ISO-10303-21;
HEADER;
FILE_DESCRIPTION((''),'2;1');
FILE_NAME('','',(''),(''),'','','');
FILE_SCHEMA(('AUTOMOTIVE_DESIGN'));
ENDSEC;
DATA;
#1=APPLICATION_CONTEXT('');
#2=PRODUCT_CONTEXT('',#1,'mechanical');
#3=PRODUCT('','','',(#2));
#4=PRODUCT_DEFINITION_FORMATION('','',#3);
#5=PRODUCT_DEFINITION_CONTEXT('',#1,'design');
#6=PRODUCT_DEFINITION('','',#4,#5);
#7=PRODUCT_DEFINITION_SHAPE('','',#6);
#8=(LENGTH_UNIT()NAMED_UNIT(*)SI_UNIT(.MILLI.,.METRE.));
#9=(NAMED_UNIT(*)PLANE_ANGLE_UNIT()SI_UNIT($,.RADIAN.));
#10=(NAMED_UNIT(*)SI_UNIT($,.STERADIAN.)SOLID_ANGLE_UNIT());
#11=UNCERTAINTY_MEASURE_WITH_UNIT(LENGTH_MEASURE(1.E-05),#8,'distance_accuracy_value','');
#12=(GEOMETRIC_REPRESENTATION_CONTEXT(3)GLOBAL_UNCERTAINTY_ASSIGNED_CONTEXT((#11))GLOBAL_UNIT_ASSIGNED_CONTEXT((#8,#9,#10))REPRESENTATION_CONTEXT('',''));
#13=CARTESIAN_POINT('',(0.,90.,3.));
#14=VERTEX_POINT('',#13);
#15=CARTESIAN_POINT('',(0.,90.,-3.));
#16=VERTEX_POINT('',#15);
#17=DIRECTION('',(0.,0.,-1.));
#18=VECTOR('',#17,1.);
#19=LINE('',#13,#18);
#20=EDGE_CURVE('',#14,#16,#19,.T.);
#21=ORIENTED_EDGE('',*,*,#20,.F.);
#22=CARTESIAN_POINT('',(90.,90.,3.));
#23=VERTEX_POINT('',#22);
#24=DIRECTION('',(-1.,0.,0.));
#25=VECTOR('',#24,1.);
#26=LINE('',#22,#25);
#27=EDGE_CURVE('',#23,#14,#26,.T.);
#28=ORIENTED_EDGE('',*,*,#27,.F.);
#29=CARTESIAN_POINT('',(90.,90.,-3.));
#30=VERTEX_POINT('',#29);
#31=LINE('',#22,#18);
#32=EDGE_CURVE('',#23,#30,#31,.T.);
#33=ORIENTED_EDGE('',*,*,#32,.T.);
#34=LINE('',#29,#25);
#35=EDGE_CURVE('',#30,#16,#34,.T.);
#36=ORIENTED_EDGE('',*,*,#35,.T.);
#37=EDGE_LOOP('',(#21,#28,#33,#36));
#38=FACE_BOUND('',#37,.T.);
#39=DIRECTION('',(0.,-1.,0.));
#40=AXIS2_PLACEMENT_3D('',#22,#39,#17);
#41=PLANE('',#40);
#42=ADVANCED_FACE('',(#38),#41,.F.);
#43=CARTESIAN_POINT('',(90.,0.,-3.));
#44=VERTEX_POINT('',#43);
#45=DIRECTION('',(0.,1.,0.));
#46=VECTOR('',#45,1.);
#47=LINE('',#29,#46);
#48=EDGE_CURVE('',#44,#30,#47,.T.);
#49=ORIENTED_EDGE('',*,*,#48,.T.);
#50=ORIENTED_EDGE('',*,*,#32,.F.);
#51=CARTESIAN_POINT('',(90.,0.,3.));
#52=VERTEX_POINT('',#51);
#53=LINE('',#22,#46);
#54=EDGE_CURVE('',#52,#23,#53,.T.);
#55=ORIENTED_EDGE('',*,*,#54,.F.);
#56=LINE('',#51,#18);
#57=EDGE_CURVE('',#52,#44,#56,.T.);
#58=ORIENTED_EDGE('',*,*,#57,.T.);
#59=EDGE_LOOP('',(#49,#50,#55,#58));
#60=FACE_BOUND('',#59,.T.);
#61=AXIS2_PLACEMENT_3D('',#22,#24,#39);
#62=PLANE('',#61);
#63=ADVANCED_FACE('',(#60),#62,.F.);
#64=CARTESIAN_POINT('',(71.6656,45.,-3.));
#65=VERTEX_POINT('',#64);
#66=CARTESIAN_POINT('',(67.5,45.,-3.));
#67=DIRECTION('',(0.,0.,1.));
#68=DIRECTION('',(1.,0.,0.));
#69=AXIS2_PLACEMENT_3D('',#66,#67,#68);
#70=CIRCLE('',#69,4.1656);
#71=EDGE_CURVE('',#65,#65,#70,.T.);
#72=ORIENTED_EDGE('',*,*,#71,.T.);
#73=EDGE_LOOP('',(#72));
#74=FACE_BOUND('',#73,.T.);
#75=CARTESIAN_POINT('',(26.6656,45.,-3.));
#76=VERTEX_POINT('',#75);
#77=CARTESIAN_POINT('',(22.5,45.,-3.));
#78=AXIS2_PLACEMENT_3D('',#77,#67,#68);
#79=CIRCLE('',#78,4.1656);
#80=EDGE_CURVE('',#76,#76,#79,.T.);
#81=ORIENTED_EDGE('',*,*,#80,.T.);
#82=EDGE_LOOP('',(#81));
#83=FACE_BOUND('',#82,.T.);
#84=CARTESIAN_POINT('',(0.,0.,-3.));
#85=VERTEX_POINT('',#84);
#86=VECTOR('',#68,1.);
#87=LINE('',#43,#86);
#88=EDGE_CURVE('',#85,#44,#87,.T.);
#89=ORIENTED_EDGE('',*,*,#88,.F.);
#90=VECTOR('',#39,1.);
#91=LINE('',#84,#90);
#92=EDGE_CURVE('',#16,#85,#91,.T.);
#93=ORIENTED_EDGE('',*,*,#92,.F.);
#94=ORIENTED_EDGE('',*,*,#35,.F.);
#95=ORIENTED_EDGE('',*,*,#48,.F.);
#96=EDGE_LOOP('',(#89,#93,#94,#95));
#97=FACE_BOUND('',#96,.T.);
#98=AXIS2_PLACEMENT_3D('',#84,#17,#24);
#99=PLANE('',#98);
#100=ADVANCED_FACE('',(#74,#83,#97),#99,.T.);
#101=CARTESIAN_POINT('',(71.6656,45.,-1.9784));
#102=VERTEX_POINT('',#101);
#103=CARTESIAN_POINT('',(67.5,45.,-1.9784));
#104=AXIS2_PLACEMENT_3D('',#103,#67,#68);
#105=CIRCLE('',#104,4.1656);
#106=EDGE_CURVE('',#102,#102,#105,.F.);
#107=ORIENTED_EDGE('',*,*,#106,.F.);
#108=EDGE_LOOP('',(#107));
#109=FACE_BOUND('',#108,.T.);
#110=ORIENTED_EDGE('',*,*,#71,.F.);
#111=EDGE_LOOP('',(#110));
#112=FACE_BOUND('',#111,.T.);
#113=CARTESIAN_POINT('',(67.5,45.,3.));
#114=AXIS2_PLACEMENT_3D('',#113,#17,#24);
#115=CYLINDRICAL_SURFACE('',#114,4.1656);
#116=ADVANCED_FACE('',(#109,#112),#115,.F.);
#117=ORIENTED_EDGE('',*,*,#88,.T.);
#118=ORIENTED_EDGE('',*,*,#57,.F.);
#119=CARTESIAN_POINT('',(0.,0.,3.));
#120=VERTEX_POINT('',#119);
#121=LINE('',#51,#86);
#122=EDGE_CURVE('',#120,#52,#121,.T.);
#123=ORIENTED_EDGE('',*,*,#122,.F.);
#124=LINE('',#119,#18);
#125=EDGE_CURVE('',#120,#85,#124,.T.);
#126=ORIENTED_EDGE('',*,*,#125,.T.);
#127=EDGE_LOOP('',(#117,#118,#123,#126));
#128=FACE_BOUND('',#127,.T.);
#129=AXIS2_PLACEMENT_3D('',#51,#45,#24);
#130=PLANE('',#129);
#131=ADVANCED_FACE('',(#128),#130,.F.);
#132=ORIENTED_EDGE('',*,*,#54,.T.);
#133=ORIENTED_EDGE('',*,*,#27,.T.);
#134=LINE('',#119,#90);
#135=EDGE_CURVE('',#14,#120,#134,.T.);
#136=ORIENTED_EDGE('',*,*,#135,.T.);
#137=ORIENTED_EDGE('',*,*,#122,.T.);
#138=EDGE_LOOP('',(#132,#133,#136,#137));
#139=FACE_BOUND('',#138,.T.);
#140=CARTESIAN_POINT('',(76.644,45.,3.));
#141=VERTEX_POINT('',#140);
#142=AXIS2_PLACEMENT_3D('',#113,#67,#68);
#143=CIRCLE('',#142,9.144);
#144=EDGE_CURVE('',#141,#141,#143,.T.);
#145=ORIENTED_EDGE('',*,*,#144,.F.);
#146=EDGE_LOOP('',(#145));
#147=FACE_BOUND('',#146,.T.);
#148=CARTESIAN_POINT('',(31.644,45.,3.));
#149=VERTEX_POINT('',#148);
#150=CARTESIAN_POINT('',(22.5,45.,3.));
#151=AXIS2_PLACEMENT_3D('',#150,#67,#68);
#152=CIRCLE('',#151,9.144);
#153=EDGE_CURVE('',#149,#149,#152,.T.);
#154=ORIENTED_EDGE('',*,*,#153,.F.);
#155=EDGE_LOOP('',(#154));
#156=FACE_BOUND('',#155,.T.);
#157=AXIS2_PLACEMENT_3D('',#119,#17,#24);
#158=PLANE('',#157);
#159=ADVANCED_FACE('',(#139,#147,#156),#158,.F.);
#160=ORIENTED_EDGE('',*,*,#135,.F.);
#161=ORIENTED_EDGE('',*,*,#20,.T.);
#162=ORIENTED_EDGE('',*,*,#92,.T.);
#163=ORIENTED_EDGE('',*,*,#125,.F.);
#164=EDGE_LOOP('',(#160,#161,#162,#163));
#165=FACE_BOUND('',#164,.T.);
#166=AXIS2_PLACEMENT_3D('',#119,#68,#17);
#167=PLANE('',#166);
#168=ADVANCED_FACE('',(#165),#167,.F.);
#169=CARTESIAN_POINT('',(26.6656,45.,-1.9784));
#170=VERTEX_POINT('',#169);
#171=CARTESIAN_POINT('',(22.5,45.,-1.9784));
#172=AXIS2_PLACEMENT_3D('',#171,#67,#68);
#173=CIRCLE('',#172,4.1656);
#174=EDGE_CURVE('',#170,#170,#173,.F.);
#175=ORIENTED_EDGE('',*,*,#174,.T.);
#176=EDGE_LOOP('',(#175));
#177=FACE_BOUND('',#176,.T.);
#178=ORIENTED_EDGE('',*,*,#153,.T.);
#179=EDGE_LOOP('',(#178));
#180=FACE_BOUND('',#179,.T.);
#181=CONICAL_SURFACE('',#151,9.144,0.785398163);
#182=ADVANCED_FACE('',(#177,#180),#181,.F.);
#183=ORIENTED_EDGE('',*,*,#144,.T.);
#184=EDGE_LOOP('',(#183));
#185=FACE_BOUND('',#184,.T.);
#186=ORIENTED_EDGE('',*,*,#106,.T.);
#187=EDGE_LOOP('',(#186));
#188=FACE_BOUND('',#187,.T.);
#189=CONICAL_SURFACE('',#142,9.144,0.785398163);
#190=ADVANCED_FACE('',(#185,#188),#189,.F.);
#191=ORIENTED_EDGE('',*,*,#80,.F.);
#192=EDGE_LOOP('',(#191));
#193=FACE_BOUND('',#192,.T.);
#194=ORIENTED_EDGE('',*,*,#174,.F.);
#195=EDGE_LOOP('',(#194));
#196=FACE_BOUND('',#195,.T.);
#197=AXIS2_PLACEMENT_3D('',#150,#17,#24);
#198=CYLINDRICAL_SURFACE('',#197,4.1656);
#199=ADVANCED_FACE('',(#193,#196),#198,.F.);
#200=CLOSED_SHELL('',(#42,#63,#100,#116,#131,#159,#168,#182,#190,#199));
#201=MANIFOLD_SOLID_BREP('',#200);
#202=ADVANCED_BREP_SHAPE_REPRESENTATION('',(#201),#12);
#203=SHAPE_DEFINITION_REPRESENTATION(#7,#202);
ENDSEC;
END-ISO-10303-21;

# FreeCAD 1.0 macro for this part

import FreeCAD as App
import Part
import Sketcher


def add_polygon(sketch, points):
    """Adds a closed chain of lines whose ends are joined by coincident constraints."""
    first, n = sketch.GeometryCount, len(points)
    for a, b in zip(points, points[1:] + points[:1]):
        sketch.addGeometry(Part.LineSegment(App.Vector(*a, 0), App.Vector(*b, 0)), False)
    for i in range(n):
        sketch.addConstraint(Sketcher.Constraint("Coincident", first + i, 2, first + (i + 1) % n, 1))

doc = App.newDocument("Part")
body = doc.addObject("PartDesign::Body", "Body")

# Sketch on XY plane
sketch1 = doc.addObject("Sketcher::SketchObject", "Sketch")
body.addObject(sketch1)
sketch1.AttachmentSupport = (doc.XY_Plane, [""])
sketch1.MapMode = "FlatFace"
add_polygon(sketch1, [(0, 90), (0, 0), (90, 0), (90, 90)])  # lines 0-3
sketch1.addGeometry(Part.Circle(App.Vector(22.5, 45, 0), App.Vector(0, 0, 1), 4.2), False)  # 4
sketch1.addGeometry(Part.Circle(App.Vector(67.5, 45, 0), App.Vector(0, 0, 1), 4.2), False)  # 5
sketch1.addConstraint([
    Sketcher.Constraint("Vertical", 0),
    Sketcher.Constraint("Horizontal", 1),
    Sketcher.Constraint("Vertical", 2),
    Sketcher.Constraint("Horizontal", 3),
    Sketcher.Constraint("Coincident", 0, 2, -1, 1),
    Sketcher.Constraint("Equal", 4, 5),
    Sketcher.Constraint("Horizontal", 4, 3, 5, 3),
    Sketcher.Constraint("Equal", 3, 0),
    Sketcher.Constraint("DistanceX", 1, 1, 1, 2, 90.0),
    Sketcher.Constraint("DistanceY", -1, 1, 4, 3, 45.0),
    Sketcher.Constraint("DistanceX", 4, 3, 5, 3, 45.0),
    Sketcher.Constraint("Diameter", 4, 8.3312),
    Sketcher.Constraint("DistanceX", -1, 1, 4, 3, 22.5),
])
pad1 = doc.addObject("PartDesign::Pad", "Pad")
body.addObject(pad1)
pad1.Profile = sketch1
pad1.Length = 6
pad1.Midplane = True

# Sketch on XY plane
sketch2 = doc.addObject("Sketcher::SketchObject", "Sketch001")
body.addObject(sketch2)
sketch2.AttachmentSupport = (doc.XY_Plane, [""])
sketch2.MapMode = "FlatFace"
sketch2.AttachmentOffset = App.Placement(App.Vector(0, 0, 3), App.Rotation())
sketch2.addGeometry([
    Part.Circle(App.Vector(22, 45, 0), App.Vector(0, 0, 1), 9),
    Part.Circle(App.Vector(68, 45, 0), App.Vector(0, 0, 1), 9),
], False)
sketch2.addConstraint([
    Sketcher.Constraint("Equal", 0, 1),
    Sketcher.Constraint("Horizontal", 0, 3, 1, 3),
    Sketcher.Constraint("Diameter", 0, 18.288),
    Sketcher.Constraint("DistanceY", -1, 1, 0, 3, 45.0),
    Sketcher.Constraint("DistanceX", 0, 3, 1, 3, 45.0),
    Sketcher.Constraint("DistanceX", -1, 1, 0, 3, 22.5),
])
pocket1 = doc.addObject("PartDesign::Pocket", "Pocket")
body.addObject(pocket1)
pocket1.Profile = sketch2
pocket1.Type = "ThroughAll"
pocket1.TaperAngle = -45

doc.recompute()
